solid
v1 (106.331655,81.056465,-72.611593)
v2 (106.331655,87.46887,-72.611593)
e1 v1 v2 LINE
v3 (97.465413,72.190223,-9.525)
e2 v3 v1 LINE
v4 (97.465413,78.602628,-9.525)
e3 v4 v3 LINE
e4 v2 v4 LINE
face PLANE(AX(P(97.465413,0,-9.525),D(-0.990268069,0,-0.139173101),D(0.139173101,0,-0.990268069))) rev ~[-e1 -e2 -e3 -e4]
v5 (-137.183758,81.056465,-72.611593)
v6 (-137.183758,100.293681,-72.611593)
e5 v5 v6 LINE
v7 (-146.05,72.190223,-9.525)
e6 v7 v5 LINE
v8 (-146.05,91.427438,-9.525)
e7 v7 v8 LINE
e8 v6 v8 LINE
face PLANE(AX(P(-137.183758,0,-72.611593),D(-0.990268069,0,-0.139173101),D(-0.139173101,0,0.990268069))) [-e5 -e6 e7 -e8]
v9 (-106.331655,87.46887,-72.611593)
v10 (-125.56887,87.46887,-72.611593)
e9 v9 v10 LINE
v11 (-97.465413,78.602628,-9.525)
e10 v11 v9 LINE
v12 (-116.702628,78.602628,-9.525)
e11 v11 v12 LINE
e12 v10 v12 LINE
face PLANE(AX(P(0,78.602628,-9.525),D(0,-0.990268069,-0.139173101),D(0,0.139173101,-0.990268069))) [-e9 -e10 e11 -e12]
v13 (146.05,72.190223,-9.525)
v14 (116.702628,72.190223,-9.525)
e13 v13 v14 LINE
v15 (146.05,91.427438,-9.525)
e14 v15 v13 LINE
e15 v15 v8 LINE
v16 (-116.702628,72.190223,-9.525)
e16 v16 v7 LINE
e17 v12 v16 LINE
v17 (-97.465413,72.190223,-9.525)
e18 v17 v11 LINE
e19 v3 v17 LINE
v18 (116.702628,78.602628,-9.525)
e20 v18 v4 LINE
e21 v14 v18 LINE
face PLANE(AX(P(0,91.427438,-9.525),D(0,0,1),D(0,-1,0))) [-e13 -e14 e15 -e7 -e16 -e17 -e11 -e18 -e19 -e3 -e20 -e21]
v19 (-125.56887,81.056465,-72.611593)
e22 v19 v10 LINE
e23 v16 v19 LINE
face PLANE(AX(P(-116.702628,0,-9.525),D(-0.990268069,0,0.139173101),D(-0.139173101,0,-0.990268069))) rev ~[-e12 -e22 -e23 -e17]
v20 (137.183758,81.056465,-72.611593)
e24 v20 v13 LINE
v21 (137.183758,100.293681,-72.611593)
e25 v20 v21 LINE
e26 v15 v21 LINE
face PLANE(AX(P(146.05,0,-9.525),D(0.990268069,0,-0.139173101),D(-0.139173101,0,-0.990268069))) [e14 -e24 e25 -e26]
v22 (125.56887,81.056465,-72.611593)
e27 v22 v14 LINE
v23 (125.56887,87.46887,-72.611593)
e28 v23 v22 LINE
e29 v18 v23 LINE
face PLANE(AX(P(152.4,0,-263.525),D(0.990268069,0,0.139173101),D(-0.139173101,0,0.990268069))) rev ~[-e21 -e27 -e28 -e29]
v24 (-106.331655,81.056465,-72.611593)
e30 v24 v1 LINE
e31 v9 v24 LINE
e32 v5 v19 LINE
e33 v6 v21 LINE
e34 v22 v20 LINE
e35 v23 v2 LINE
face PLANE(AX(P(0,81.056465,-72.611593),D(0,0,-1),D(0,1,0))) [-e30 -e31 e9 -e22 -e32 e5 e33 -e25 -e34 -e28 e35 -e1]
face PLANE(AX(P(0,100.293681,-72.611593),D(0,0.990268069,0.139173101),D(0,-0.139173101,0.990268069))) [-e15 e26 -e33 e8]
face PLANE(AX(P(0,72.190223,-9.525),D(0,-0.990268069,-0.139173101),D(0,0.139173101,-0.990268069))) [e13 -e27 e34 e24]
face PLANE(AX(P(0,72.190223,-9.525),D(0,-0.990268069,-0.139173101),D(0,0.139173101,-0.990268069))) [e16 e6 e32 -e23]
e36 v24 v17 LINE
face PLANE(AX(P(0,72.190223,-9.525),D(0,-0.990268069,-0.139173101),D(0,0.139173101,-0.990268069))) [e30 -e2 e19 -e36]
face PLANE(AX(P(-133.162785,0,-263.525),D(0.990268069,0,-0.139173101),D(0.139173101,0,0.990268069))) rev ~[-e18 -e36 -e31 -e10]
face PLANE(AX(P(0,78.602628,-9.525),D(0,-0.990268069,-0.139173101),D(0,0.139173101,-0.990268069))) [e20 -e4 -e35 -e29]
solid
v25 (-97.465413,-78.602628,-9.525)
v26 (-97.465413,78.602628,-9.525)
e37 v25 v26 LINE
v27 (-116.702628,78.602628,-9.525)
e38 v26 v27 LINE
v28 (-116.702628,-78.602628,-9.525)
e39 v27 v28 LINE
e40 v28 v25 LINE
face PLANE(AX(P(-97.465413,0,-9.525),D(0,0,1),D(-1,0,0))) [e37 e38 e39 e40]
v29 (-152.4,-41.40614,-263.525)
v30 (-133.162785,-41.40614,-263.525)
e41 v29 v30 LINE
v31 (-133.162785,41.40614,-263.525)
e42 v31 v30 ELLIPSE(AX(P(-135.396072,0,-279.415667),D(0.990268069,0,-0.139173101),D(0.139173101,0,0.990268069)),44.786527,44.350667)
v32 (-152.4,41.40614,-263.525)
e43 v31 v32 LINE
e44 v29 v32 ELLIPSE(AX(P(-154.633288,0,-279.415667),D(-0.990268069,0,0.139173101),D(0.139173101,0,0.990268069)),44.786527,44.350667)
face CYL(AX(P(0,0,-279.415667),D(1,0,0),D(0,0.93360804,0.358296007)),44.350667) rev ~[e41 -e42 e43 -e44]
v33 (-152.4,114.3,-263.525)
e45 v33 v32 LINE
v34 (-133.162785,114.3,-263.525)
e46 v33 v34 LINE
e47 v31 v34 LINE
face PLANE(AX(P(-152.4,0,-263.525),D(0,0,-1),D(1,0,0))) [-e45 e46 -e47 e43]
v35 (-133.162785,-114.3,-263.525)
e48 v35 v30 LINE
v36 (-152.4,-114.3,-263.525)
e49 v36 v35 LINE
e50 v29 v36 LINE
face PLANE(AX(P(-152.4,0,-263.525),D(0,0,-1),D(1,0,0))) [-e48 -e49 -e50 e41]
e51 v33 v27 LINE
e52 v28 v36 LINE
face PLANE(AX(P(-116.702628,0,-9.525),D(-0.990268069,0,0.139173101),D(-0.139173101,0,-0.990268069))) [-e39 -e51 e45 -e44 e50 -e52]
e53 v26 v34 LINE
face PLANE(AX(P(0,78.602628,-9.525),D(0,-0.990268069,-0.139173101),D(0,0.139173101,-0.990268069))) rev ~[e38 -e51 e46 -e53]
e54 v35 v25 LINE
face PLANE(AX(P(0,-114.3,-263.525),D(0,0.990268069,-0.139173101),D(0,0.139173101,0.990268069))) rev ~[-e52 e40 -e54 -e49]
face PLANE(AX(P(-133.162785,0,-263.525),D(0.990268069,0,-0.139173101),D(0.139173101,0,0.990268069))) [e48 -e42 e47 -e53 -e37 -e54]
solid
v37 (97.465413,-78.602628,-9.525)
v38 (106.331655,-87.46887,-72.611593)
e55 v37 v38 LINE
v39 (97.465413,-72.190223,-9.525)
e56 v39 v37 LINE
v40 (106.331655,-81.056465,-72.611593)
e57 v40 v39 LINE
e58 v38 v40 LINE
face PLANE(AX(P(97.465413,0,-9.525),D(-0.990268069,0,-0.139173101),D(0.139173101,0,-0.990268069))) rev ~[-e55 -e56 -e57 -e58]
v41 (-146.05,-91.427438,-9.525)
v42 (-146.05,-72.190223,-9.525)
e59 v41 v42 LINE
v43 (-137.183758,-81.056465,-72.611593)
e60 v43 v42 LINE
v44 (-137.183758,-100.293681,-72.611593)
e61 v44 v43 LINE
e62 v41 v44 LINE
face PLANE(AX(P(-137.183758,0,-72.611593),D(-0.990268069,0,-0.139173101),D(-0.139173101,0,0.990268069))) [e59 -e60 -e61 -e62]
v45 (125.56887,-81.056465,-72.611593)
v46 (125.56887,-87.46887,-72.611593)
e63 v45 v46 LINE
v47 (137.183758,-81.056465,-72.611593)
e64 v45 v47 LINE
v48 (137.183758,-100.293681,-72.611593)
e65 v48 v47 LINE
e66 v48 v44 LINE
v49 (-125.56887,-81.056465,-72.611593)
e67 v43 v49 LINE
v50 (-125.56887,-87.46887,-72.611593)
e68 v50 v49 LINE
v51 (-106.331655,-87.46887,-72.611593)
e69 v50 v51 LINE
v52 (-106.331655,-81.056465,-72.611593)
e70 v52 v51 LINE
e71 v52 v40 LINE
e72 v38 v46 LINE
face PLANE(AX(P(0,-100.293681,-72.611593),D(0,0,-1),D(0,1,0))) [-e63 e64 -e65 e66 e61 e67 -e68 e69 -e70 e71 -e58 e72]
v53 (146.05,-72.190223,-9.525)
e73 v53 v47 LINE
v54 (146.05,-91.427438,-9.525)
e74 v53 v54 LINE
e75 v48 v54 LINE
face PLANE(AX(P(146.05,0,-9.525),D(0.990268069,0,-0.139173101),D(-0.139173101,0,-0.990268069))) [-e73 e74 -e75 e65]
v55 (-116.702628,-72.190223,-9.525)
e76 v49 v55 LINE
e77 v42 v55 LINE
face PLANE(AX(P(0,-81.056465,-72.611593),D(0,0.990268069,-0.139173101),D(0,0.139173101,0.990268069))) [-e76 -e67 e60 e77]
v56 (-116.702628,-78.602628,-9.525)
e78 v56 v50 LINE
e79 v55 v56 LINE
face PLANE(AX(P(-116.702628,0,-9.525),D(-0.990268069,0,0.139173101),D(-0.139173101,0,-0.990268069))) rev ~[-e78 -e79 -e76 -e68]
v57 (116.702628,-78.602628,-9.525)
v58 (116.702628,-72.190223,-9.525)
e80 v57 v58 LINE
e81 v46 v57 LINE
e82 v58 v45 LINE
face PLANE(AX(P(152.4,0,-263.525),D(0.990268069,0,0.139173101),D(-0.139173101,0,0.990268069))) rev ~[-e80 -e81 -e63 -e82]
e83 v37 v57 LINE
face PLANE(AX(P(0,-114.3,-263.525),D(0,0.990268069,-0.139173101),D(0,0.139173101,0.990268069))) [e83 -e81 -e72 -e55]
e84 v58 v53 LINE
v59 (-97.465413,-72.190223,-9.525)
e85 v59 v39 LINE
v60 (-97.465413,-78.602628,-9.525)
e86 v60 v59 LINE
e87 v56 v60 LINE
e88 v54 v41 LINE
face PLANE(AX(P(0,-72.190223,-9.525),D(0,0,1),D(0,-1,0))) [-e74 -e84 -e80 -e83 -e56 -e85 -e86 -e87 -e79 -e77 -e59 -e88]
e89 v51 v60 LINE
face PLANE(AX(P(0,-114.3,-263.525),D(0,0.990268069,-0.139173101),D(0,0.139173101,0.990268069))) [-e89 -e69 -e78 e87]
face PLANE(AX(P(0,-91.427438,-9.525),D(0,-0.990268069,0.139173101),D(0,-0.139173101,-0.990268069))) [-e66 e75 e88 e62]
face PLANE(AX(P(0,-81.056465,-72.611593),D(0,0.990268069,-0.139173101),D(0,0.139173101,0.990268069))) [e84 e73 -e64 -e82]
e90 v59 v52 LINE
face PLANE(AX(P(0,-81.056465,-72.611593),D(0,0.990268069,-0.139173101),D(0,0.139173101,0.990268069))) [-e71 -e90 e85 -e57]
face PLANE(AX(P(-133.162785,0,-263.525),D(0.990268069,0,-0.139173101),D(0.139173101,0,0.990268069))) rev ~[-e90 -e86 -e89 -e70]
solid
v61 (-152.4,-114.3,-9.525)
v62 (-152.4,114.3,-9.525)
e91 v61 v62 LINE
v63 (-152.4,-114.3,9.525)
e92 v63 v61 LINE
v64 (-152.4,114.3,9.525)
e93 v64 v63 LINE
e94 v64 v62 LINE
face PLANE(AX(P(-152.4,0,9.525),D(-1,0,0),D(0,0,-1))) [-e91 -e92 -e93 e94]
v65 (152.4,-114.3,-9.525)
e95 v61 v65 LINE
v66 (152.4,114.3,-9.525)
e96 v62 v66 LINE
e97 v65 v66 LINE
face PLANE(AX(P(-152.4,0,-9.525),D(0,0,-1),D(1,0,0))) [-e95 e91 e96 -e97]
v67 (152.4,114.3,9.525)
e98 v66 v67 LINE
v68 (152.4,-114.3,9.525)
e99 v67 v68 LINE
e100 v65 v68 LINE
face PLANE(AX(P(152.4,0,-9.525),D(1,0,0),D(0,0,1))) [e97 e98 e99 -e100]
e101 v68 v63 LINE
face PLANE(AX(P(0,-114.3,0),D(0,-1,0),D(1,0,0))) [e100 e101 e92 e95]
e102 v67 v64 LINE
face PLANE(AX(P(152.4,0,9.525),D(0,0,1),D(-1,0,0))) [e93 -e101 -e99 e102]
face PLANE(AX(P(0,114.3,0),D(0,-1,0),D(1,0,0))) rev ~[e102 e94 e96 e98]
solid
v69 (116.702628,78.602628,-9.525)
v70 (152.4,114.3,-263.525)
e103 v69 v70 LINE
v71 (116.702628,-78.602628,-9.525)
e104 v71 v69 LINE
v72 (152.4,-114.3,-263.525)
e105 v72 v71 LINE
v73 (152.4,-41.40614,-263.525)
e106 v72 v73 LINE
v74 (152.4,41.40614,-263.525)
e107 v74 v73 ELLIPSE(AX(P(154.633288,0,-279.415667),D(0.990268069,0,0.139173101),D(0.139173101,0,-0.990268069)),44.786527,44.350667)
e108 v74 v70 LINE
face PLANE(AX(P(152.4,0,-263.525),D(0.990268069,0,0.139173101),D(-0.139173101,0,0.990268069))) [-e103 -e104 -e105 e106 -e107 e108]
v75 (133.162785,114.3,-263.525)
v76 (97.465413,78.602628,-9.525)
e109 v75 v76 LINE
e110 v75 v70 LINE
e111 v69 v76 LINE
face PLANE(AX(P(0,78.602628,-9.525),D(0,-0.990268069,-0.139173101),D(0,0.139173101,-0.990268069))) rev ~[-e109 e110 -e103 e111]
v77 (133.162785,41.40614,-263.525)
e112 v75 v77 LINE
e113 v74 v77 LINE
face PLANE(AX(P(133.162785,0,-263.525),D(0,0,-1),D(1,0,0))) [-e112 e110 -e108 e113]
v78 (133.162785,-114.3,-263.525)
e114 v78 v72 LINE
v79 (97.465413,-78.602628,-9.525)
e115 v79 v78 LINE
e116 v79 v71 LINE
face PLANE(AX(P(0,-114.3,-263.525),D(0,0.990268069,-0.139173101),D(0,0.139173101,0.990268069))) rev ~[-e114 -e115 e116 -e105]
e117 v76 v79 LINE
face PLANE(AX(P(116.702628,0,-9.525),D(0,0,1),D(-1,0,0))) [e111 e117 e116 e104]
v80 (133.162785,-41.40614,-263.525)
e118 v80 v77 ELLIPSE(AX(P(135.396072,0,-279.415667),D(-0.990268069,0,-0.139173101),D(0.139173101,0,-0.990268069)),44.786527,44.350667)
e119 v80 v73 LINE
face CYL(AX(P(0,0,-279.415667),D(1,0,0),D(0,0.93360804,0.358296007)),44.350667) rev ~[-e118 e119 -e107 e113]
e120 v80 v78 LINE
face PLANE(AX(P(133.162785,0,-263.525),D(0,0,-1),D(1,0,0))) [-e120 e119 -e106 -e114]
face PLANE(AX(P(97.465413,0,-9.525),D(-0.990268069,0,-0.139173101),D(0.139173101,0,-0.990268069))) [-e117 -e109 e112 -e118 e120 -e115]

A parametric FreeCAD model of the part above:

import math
import FreeCAD as App
import Part
import Sketcher
from FreeCAD import Vector
Q = App.Units.Quantity


def add_polygon(sketch, points):
    """Adds a closed chain of lines whose ends are joined by coincident constraints."""
    first, n = sketch.GeometryCount, len(points)
    for a, b in zip(points, points[1:] + points[:1]):
        sketch.addGeometry(Part.LineSegment(App.Vector(*a, 0), App.Vector(*b, 0)), False)
    for i in range(n):
        sketch.addConstraint(Sketcher.Constraint("Coincident", first + i, 2, first + (i + 1) % n, 1))

doc = App.newDocument("Part")
params = doc.addObject("Spreadsheet::Sheet", "Params")
for row, (alias, value) in enumerate([
    ("sketch1_width", "12 in"),
    ("sketch1_height", "0.75 in"),
    ("pad1_length", "9 in"),
    ("pad2_length", "4.5 in"),
    ("pad2_length2", "4.5 in"),
    ("pad3_length", "4.5 in"),
    ("pad3_length2", "4.5 in"),
    ("sketch4_height", "10 in"),
    ("pad4_length", "152.401 mm"),
    ("pad4_length2", "152.401 mm"),
    ("pad5_length", "6 in"),
    ("pad5_length2", "6 in"),
    ("pad6_length", "6 in"),
    ("pad6_length2", "6 in"),
    ("sketch7_width", "0.25 in"),
    ("pad7_length", "114.301 mm"),
    ("pad7_length2", "114.301 mm"),
], start=1):
    params.set(f"A{row}", alias)
    params.set(f"B{row}", "=" + value)
    params.setAlias(f"B{row}", alias)

body = doc.addObject("PartDesign::Body", "Body")

# Sketch on XZ plane
sketch1 = doc.addObject("Sketcher::SketchObject", "Sketch")
body.addObject(sketch1)
sketch1.AttachmentSupport = (doc.XZ_Plane, [""])
sketch1.MapMode = "FlatFace"
add_polygon(sketch1, [(152, -10), (152, 10), (-152, 10), (-152, -10)])  # lines 0-3
sketch1.addConstraint([
    Sketcher.Constraint("Vertical", 0),
    Sketcher.Constraint("Horizontal", 1),
    Sketcher.Constraint("Vertical", 2),
    Sketcher.Constraint("Horizontal", 3),
    Sketcher.Constraint("Symmetric", 0, 2, 2, 2, -1, 1),
    Sketcher.Constraint("DistanceX", 1, 2, 1, 1, Q("12 in")),
    Sketcher.Constraint("DistanceY", 0, 1, 0, 2, Q("0.75 in")),
])
sketch1.setExpression("Constraints[9]", "Params.sketch1_width")
sketch1.setExpression("Constraints[10]", "Params.sketch1_height")
pad1 = doc.addObject("PartDesign::Pad", "Pad")
body.addObject(pad1)
pad1.Profile = sketch1
pad1.setExpression("Length", "Params.pad1_length")
pad1.Midplane = True
body2 = doc.addObject("PartDesign::Body", "Body001")

# Sketch on XZ plane
sketch2 = doc.addObject("Sketcher::SketchObject", "Sketch001")
body2.addObject(sketch2)
sketch2.AttachmentSupport = (doc.getObject("XZ_Plane001"), [""])
sketch2.MapMode = "FlatFace"
add_polygon(sketch2, [(-97, -10), (-117, -10), (-152, -264), (-133, -264)])  # lines 0-3
sketch2.addConstraint([
    Sketcher.Constraint("Horizontal", 0),
    Sketcher.Constraint("Horizontal", 2),
    Sketcher.Constraint("Parallel", 1, 3),
    Sketcher.Constraint("DistanceX", 1, 2, -1, 1, Q("6 in")),
    Sketcher.Constraint("Angle", 1, Q("-98 deg")),
    Sketcher.Constraint("DistanceY", 1, 2, 0, 2, Q("10 in")),
    Sketcher.Constraint("DistanceY", 0, 2, -1, 1, Q("0.375 in")),
    Sketcher.Constraint("DistanceX", 0, 2, 0, 1, Q("19.237215 mm")),
])
pad2 = doc.addObject("PartDesign::Pad", "Pad001")
body2.addObject(pad2)
pad2.Profile = sketch2
pad2.Type = "TwoLengths"
pad2.setExpression("Length", "Params.pad2_length")
pad2.setExpression("Length2", "Params.pad2_length2")
body3 = doc.addObject("PartDesign::Body", "Body002")

# Sketch on XZ plane
sketch3 = doc.addObject("Sketcher::SketchObject", "Sketch002")
body3.addObject(sketch3)
sketch3.AttachmentSupport = (doc.getObject("XZ_Plane002"), [""])
sketch3.MapMode = "FlatFace"
add_polygon(sketch3, [(117, -10), (97, -10), (133, -264), (152, -264)])  # lines 0-3
sketch3.addConstraint([
    Sketcher.Constraint("Horizontal", 0),
    Sketcher.Constraint("Horizontal", 2),
    Sketcher.Constraint("Parallel", 1, 3),
    Sketcher.Constraint("DistanceX", -1, 1, 2, 2, Q("6 in")),
    Sketcher.Constraint("Angle", 1, Q("-82 deg")),
    Sketcher.Constraint("DistanceY", 1, 2, 0, 2, Q("10 in")),
    Sketcher.Constraint("DistanceY", 0, 2, -1, 1, Q("0.375 in")),
    Sketcher.Constraint("DistanceX", 0, 2, 0, 1, Q("19.237215 mm")),
])
pad3 = doc.addObject("PartDesign::Pad", "Pad002")
body3.addObject(pad3)
pad3.Profile = sketch3
pad3.Type = "TwoLengths"
pad3.setExpression("Length", "Params.pad3_length")
pad3.setExpression("Length2", "Params.pad3_length2")
body4 = doc.addObject("PartDesign::Body", "Body003")
body4.AllowCompound = True

# Sketch on YZ plane
sketch4 = doc.addObject("Sketcher::SketchObject", "Sketch003")
body4.addObject(sketch4)
sketch4.AttachmentSupport = (doc.getObject("YZ_Plane003"), [""])
sketch4.MapMode = "FlatFace"
sketch4.addGeometry(Part.ArcOfCircle(Part.Circle(Vector(0, -279, 0), Vector(0, 0, 1), 44), math.radians(21), math.radians(159)), False)  # 0
sketch4.addGeometry(Part.LineSegment(Vector(-41, -264, 0), Vector(41, -264, 0)), False)  # 1
add_polygon(sketch4, [(-114, -264), (-79, -10), (-114, -10)])  # lines 2-4
add_polygon(sketch4, [(114, -264), (114, -10), (79, -10)])  # lines 5-7
sketch4.addConstraint([
    Sketcher.Constraint("Coincident", 0, 1, 1, 2),
    Sketcher.Constraint("Coincident", 1, 1, 0, 2),
    Sketcher.Constraint("Horizontal", 1),
    Sketcher.Constraint("Horizontal", 3),
    Sketcher.Constraint("Vertical", 4),
    Sketcher.Constraint("Vertical", 5),
    Sketcher.Constraint("Horizontal", 6),
    Sketcher.Constraint("Symmetric", 3, 2, 5, 2, -2),
    Sketcher.Constraint("PointOnObject", 0, 3, -2),
    Sketcher.Constraint("Horizontal", 1, 1, 4, 2),
    Sketcher.Constraint("Horizontal", 4, 2, 7, 2),
    Sketcher.Constraint("Equal", 3, 6),
    Sketcher.Constraint("DistanceY", 4, 2, 4, 1, Q("10 in")),
    Sketcher.Constraint("Angle", 2, Q("82 deg")),
    Sketcher.Constraint("DistanceX", 3, 2, 5, 2, Q("9 in")),
    Sketcher.Constraint("DistanceY", 0, 1, -1, 1, Q("10.375 in")),
    Sketcher.Constraint("Radius", 0, Q("44.350667 mm")),
    Sketcher.Constraint("DistanceX", 1, 1, 1, 2, Q("82.812279 mm")),
])
sketch4.setExpression("Constraints[18]", "Params.sketch4_height")
pad4 = doc.addObject("PartDesign::Pad", "Pad003")
body4.addObject(pad4)
pad4.Profile = sketch4
pad4.Type = "TwoLengths"
pad4.setExpression("Length", "Params.pad4_length")
pad4.setExpression("Length2", "Params.pad4_length2")
doc.recompute()

body5 = doc.addObject("PartDesign::Body", "Body004")
body5.BaseFeature = body4
boolean = doc.addObject("PartDesign::Boolean", "Boolean")
body2.addObject(boolean)
boolean.Type = "Cut"
boolean.addObjects([body5])
doc.recompute()

boolean2 = doc.addObject("PartDesign::Boolean", "Boolean001")
body3.addObject(boolean2)
boolean2.Type = "Cut"
boolean2.addObjects([body4])
body6 = doc.addObject("PartDesign::Body", "Body005")

# Sketch on YZ plane
sketch5 = doc.addObject("Sketcher::SketchObject", "Sketch004")
body6.addObject(sketch5)
sketch5.AttachmentSupport = (doc.getObject("YZ_Plane005"), [""])
sketch5.MapMode = "FlatFace"
add_polygon(sketch5, [(72, -10), (81, -73), (100, -73), (91, -10)])  # lines 0-3
sketch5.addConstraint([
    Sketcher.Constraint("Horizontal", 1),
    Sketcher.Constraint("Horizontal", 3),
    Sketcher.Constraint("Parallel", 0, 2),
    Sketcher.Constraint("Angle", 0, Q("-82 deg")),
    Sketcher.Constraint("DistanceY", 2, 2, -1, 1, Q("0.375 in")),
    Sketcher.Constraint("Distance", 0, Q("63.706581 mm")),
    Sketcher.Constraint("DistanceX", 1, 1, 1, 2, Q("19.237215 mm")),
    Sketcher.Constraint("DistanceX", -1, 1, 1, 2, Q("100.293681 mm")),
])
pad5 = doc.addObject("PartDesign::Pad", "Pad004")
body6.addObject(pad5)
pad5.Profile = sketch5
pad5.Type = "TwoLengths"
pad5.setExpression("Length", "Params.pad5_length")
pad5.setExpression("Length2", "Params.pad5_length2")
body7 = doc.addObject("PartDesign::Body", "Body006")

# Sketch on YZ plane
sketch6 = doc.addObject("Sketcher::SketchObject", "Sketch005")
body7.addObject(sketch6)
sketch6.AttachmentSupport = (doc.getObject("YZ_Plane006"), [""])
sketch6.MapMode = "FlatFace"
add_polygon(sketch6, [(-100, -73), (-81, -73), (-72, -10), (-91, -10)])  # lines 0-3
sketch6.addConstraint([
    Sketcher.Constraint("Horizontal", 0),
    Sketcher.Constraint("Horizontal", 2),
    Sketcher.Constraint("Parallel", 1, 3),
    Sketcher.Constraint("Angle", 1, Q("82 deg")),
    Sketcher.Constraint("DistanceY", 1, 2, -1, 1, Q("0.375 in")),
    Sketcher.Constraint("Distance", 1, Q("63.706581 mm")),
    Sketcher.Constraint("DistanceX", 0, 1, 0, 2, Q("19.237215 mm")),
    Sketcher.Constraint("DistanceX", 2, 2, -1, 1, Q("91.427438 mm")),
])
pad6 = doc.addObject("PartDesign::Pad", "Pad005")
body7.addObject(pad6)
pad6.Profile = sketch6
pad6.Type = "TwoLengths"
pad6.setExpression("Length", "Params.pad6_length")
pad6.setExpression("Length2", "Params.pad6_length2")
body8 = doc.addObject("PartDesign::Body", "Body007")
body8.AllowCompound = True

# Sketch on XZ plane
sketch7 = doc.addObject("Sketcher::SketchObject", "Sketch006")
body8.addObject(sketch7)
sketch7.AttachmentSupport = (doc.getObject("XZ_Plane007"), [""])
sketch7.MapMode = "FlatFace"
add_polygon(sketch7, [(-146, -10), (-152, -10), (-152, -73), (-137, -73)])  # lines 0-3
add_polygon(sketch7, [(152, -73), (152, -10), (146, -10), (137, -73)])  # lines 4-7
sketch7.addConstraint([
    Sketcher.Constraint("Horizontal", 0),
    Sketcher.Constraint("Vertical", 1),
    Sketcher.Constraint("Horizontal", 2),
    Sketcher.Constraint("Vertical", 4),
    Sketcher.Constraint("Horizontal", 5),
    Sketcher.Constraint("Horizontal", 7),
    Sketcher.Constraint("Symmetric", 0, 2, 4, 2, -2),
    Sketcher.Constraint("Symmetric", 2, 2, 6, 2, -2),
    Sketcher.Constraint("Equal", 0, 5),
    Sketcher.Constraint("DistanceX", 0, 2, -1, 1, Q("6 in")),
    Sketcher.Constraint("Angle", 3, Q("98 deg")),
    Sketcher.Constraint("DistanceX", 0, 2, 0, 1, Q("0.25 in")),
    Sketcher.Constraint("DistanceY", 0, 2, -1, 1, Q("0.375 in")),
    Sketcher.Constraint("Distance", 3, Q("63.706581 mm")),
])
sketch7.setExpression("Constraints[19]", "Params.sketch7_width")
pad7 = doc.addObject("PartDesign::Pad", "Pad006")
body8.addObject(pad7)
pad7.Profile = sketch7
pad7.Type = "TwoLengths"
pad7.setExpression("Length", "Params.pad7_length")
pad7.setExpression("Length2", "Params.pad7_length2")
pad7.Reversed = True
doc.recompute()

body9 = doc.addObject("PartDesign::Body", "Body008")
body9.BaseFeature = body8
boolean3 = doc.addObject("PartDesign::Boolean", "Boolean002")
body6.addObject(boolean3)
boolean3.Type = "Cut"
boolean3.addObjects([body9])
doc.recompute()

body10 = doc.addObject("PartDesign::Body", "Body009")
body10.BaseFeature = body2
boolean4 = doc.addObject("PartDesign::Boolean", "Boolean003")
body6.addObject(boolean4)
boolean4.Type = "Cut"
boolean4.addObjects([body10])
doc.recompute()

body11 = doc.addObject("PartDesign::Body", "Body010")
body11.BaseFeature = body3
boolean5 = doc.addObject("PartDesign::Boolean", "Boolean004")
body6.addObject(boolean5)
boolean5.Type = "Cut"
boolean5.addObjects([body11])
doc.recompute()

boolean6 = doc.addObject("PartDesign::Boolean", "Boolean005")
body7.addObject(boolean6)
boolean6.Type = "Cut"
boolean6.addObjects([body8])
doc.recompute()

body12 = doc.addObject("PartDesign::Body", "Body011")
body12.BaseFeature = body2
boolean7 = doc.addObject("PartDesign::Boolean", "Boolean006")
body7.addObject(boolean7)
boolean7.Type = "Cut"
boolean7.addObjects([body12])
doc.recompute()

body13 = doc.addObject("PartDesign::Body", "Body012")
body13.BaseFeature = body3
boolean8 = doc.addObject("PartDesign::Boolean", "Boolean007")
body7.addObject(boolean8)
boolean8.Type = "Cut"
boolean8.addObjects([body13])
doc.recompute()

doc.recompute()
